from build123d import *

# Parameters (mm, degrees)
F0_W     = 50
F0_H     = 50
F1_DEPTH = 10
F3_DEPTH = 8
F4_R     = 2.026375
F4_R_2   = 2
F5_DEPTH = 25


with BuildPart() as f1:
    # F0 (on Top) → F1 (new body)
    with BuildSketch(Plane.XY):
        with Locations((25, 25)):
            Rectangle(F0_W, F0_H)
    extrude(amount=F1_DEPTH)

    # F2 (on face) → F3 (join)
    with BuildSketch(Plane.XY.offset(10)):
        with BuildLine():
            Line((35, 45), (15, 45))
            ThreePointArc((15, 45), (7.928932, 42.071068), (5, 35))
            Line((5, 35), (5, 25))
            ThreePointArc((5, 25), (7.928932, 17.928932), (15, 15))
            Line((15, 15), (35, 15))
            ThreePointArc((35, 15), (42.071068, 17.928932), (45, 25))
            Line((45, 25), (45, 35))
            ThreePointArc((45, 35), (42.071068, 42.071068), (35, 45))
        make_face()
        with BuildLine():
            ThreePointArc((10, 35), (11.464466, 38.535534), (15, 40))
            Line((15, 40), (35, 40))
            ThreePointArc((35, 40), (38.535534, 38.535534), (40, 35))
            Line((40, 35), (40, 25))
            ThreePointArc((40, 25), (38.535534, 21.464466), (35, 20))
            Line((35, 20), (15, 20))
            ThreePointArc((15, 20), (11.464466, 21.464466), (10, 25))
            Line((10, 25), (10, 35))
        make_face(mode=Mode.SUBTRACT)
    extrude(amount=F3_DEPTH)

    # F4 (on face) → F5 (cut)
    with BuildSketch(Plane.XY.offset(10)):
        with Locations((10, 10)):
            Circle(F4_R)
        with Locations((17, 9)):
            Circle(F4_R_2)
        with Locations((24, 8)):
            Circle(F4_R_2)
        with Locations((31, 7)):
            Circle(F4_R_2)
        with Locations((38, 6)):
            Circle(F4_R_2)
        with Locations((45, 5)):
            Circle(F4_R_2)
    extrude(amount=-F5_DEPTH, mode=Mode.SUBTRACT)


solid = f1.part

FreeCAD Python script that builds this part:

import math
import FreeCAD as App
import Part
import Sketcher
from FreeCAD import Vector


def add_polygon(sketch, points):
    """Adds a closed chain of lines whose ends are joined by coincident constraints."""
    first, n = sketch.GeometryCount, len(points)
    for a, b in zip(points, points[1:] + points[:1]):
        sketch.addGeometry(Part.LineSegment(App.Vector(*a, 0), App.Vector(*b, 0)), False)
    for i in range(n):
        sketch.addConstraint(Sketcher.Constraint("Coincident", first + i, 2, first + (i + 1) % n, 1))

doc = App.newDocument("Part")
body = doc.addObject("PartDesign::Body", "Body")

# Sketch on XY plane
sketch1 = body.newObject("Sketcher::SketchObject", "Sketch")
sketch1.AttachmentSupport = (doc.getObject("XY_Plane"), [""])
sketch1.MapMode = "FlatFace"
add_polygon(sketch1, [(0, 50), (0, 0), (50, 0), (50, 50)])  # lines 0-3
sketch1.addConstraint([
    Sketcher.Constraint("Vertical", 0),
    Sketcher.Constraint("Horizontal", 1),
    Sketcher.Constraint("Vertical", 2),
    Sketcher.Constraint("Horizontal", 3),
    Sketcher.Constraint("Coincident", 0, 2, -1, 1),
    Sketcher.Constraint("Equal", 3, 0),
    Sketcher.Constraint("DistanceX", 1, 1, 1, 2, 50.0),
])
pad1 = body.newObject("PartDesign::Pad", "Pad")
pad1.Profile = sketch1
pad1.Length = 10

# Sketch on XY plane
sketch2 = body.newObject("Sketcher::SketchObject", "Sketch001")
sketch2.AttachmentSupport = (doc.getObject("XY_Plane"), [""])
sketch2.MapMode = "FlatFace"
sketch2.AttachmentOffset = App.Placement(Vector(0, 0, 10), App.Rotation())
sketch2.addGeometry([
    Part.LineSegment(Vector(35, 45, 0), Vector(15, 45, 0)),  # 0
    Part.ArcOfCircle(Part.Circle(Vector(15, 35, 0), Vector(0, 0, 1), 10), math.radians(90), math.radians(180)),  # 1
    Part.LineSegment(Vector(5, 35, 0), Vector(5, 25, 0)),  # 2
    Part.ArcOfCircle(Part.Circle(Vector(15, 25, 0), Vector(0, 0, 1), 10), math.radians(180), math.radians(270)),  # 3
    Part.LineSegment(Vector(15, 15, 0), Vector(35, 15, 0)),  # 4
    Part.ArcOfCircle(Part.Circle(Vector(35, 25, 0), Vector(0, 0, 1), 10), math.radians(-90), math.radians(0)),  # 5
    Part.LineSegment(Vector(45, 25, 0), Vector(45, 35, 0)),  # 6
    Part.ArcOfCircle(Part.Circle(Vector(35, 35, 0), Vector(0, 0, 1), 10), math.radians(0), math.radians(90)),  # 7
    Part.LineSegment(Vector(10, 25, 0), Vector(10, 35, 0)),  # 8
    Part.ArcOfCircle(Part.Circle(Vector(15, 35, 0), Vector(0, 0, 1), 5), math.radians(90), math.radians(180)),  # 9
    Part.LineSegment(Vector(15, 40, 0), Vector(35, 40, 0)),  # 10
    Part.ArcOfCircle(Part.Circle(Vector(35, 35, 0), Vector(0, 0, 1), 5), math.radians(0), math.radians(90)),  # 11
    Part.LineSegment(Vector(40, 35, 0), Vector(40, 25, 0)),  # 12
    Part.ArcOfCircle(Part.Circle(Vector(35, 25, 0), Vector(0, 0, 1), 5), math.radians(-90), math.radians(0)),  # 13
    Part.LineSegment(Vector(35, 20, 0), Vector(15, 20, 0)),  # 14
    Part.ArcOfCircle(Part.Circle(Vector(15, 25, 0), Vector(0, 0, 1), 5), math.radians(180), math.radians(270)),  # 15
], False)
sketch2.addConstraint([
    Sketcher.Constraint("Tangent", 0, 2, 1, 1),
    Sketcher.Constraint("Tangent", 1, 2, 2, 1),
    Sketcher.Constraint("Tangent", 2, 2, 3, 1),
    Sketcher.Constraint("Tangent", 3, 2, 4, 1),
    Sketcher.Constraint("Tangent", 4, 2, 5, 1),
    Sketcher.Constraint("Tangent", 5, 2, 6, 1),
    Sketcher.Constraint("Tangent", 6, 2, 7, 1),
    Sketcher.Constraint("Tangent", 7, 2, 0, 1),
    Sketcher.Constraint("Tangent", 8, 2, 9, 2),
    Sketcher.Constraint("Tangent", 9, 1, 10, 1),
    Sketcher.Constraint("Tangent", 10, 2, 11, 2),
    Sketcher.Constraint("Tangent", 11, 1, 12, 1),
    Sketcher.Constraint("Tangent", 12, 2, 13, 2),
    Sketcher.Constraint("Tangent", 13, 1, 14, 1),
    Sketcher.Constraint("Tangent", 14, 2, 15, 2),
    Sketcher.Constraint("Tangent", 15, 1, 8, 1),
    Sketcher.Constraint("Horizontal", 0),
    Sketcher.Constraint("Vertical", 2),
    Sketcher.Constraint("Horizontal", 4),
    Sketcher.Constraint("Vertical", 6),
    Sketcher.Constraint("Vertical", 8),
    Sketcher.Constraint("Horizontal", 10),
    Sketcher.Constraint("Vertical", 12),
    Sketcher.Constraint("Horizontal", 14),
    Sketcher.Constraint("Coincident", 9, 3, 1, 3),
    Sketcher.Constraint("Coincident", 11, 3, 7, 3),
    Sketcher.Constraint("Coincident", 13, 3, 5, 3),
    Sketcher.Constraint("Equal", 1, 3),
    Sketcher.Constraint("Equal", 3, 5),
    Sketcher.Constraint("Equal", 5, 7),
    Sketcher.Constraint("Equal", 13, 15),
    Sketcher.Constraint("Radius", 1, 9.999999),
    Sketcher.Constraint("Radius", 9, 5.0),
    Sketcher.Constraint("DistanceX", 0, 2, 0, 1, 20.0),
    Sketcher.Constraint("DistanceY", 2, 2, 2, 1, 10.0),
    Sketcher.Constraint("DistanceX", -1, 1, 1, 3, 14.999999),
    Sketcher.Constraint("DistanceY", -1, 1, 1, 3, 35.000001),
])
pad2 = body.newObject("PartDesign::Pad", "Pad001")
pad2.Profile = sketch2
pad2.Length = 8

# Sketch on XY plane
sketch3 = body.newObject("Sketcher::SketchObject", "Sketch002")
sketch3.AttachmentSupport = (doc.getObject("XY_Plane"), [""])
sketch3.MapMode = "FlatFace"
sketch3.AttachmentOffset = App.Placement(Vector(0, 0, 10), App.Rotation())
sketch3.addGeometry([
    Part.Circle(Vector(10, 10, 0), Vector(0, 0, 1), 2),  # 0
    Part.Circle(Vector(17, 9, 0), Vector(0, 0, 1), 2),  # 1
    Part.Circle(Vector(24, 8, 0), Vector(0, 0, 1), 2),  # 2
    Part.Circle(Vector(31, 7, 0), Vector(0, 0, 1), 2),  # 3
    Part.Circle(Vector(38, 6, 0), Vector(0, 0, 1), 2),  # 4
    Part.Circle(Vector(45, 5, 0), Vector(0, 0, 1), 2),  # 5
], False)
sketch3.addConstraint([
    Sketcher.Constraint("Equal", 1, 2),
    Sketcher.Constraint("Equal", 2, 3),
    Sketcher.Constraint("Equal", 3, 4),
    Sketcher.Constraint("Equal", 4, 5),
    Sketcher.Constraint("Diameter", 1, 4.0),
    Sketcher.Constraint("DistanceX", -1, 1, 0, 3, 10.0),
    Sketcher.Constraint("DistanceY", -1, 1, 0, 3, 10.0),
    Sketcher.Constraint("DistanceX", -1, 1, 1, 3, 17.0),
    Sketcher.Constraint("DistanceY", -1, 1, 1, 3, 9.0),
    Sketcher.Constraint("DistanceX", -1, 1, 2, 3, 24.0),
    Sketcher.Constraint("DistanceY", -1, 1, 2, 3, 8.0),
    Sketcher.Constraint("DistanceX", -1, 1, 3, 3, 31.0),
    Sketcher.Constraint("DistanceY", -1, 1, 3, 3, 7.0),
    Sketcher.Constraint("DistanceX", -1, 1, 4, 3, 38.0),
    Sketcher.Constraint("DistanceY", -1, 1, 4, 3, 6.0),
    Sketcher.Constraint("DistanceX", -1, 1, 5, 3, 45.0),
    Sketcher.Constraint("DistanceY", -1, 1, 5, 3, 5.0),
    Sketcher.Constraint("Diameter", 0, 4.05275),
])
pocket1 = body.newObject("PartDesign::Pocket", "Pocket")
pocket1.Profile = sketch3
pocket1.Length = 25

doc.recompute()
